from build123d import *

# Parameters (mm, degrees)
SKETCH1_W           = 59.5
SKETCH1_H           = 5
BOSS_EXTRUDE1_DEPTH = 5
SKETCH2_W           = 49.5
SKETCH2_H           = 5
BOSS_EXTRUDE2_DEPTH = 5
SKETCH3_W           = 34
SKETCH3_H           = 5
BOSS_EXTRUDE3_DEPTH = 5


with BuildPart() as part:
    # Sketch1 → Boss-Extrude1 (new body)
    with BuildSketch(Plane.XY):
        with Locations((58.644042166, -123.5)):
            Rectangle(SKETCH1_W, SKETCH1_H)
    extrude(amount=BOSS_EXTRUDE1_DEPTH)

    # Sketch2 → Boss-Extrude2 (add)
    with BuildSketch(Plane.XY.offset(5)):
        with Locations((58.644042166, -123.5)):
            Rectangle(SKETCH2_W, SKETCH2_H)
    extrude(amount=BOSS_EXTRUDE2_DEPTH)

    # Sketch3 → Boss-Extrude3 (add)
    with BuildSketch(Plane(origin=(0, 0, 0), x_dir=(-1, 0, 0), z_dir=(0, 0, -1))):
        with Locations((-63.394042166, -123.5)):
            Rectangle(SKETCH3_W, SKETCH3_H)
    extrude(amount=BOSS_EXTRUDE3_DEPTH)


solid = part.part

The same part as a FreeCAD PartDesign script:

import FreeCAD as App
import Part
import Sketcher
from FreeCAD import Vector


def add_polygon(sketch, points):
    """Adds a closed chain of lines whose ends are joined by coincident constraints."""
    first, n = sketch.GeometryCount, len(points)
    for a, b in zip(points, points[1:] + points[:1]):
        sketch.addGeometry(Part.LineSegment(App.Vector(*a, 0), App.Vector(*b, 0)), False)
    for i in range(n):
        sketch.addConstraint(Sketcher.Constraint("Coincident", first + i, 2, first + (i + 1) % n, 1))

doc = App.newDocument("Part")
body = doc.addObject("PartDesign::Body", "Body")

# Sketch on XY plane
sketch1 = doc.addObject("Sketcher::SketchObject", "Sketch")
body.addObject(sketch1)
sketch1.AttachmentSupport = (doc.XY_Plane, [""])
sketch1.MapMode = "FlatFace"
add_polygon(sketch1, [(29, -121), (29, -126), (88, -126), (88, -121)])  # lines 0-3
sketch1.addConstraint([
    Sketcher.Constraint("Vertical", 0),
    Sketcher.Constraint("Horizontal", 1),
    Sketcher.Constraint("Vertical", 2),
    Sketcher.Constraint("Horizontal", 3),
    Sketcher.Constraint("DistanceY", 0, 2, 0, 1, 5.0),
    Sketcher.Constraint("DistanceX", 1, 1, 1, 2, 59.5),
    Sketcher.Constraint("DistanceY", 0, 2, -1, 1, 126.0),
    Sketcher.Constraint("DistanceX", -1, 1, 0, 2, 28.894042),
])
pad1 = doc.addObject("PartDesign::Pad", "Pad")
body.addObject(pad1)
pad1.Profile = sketch1
pad1.Length = 5

# Sketch on XY plane
sketch2 = doc.addObject("Sketcher::SketchObject", "Sketch001")
body.addObject(sketch2)
sketch2.AttachmentSupport = (doc.XY_Plane, [""])
sketch2.MapMode = "FlatFace"
sketch2.AttachmentOffset = App.Placement(Vector(0, 0, 5), App.Rotation())
add_polygon(sketch2, [(34, -121), (34, -126), (83, -126), (83, -121)])  # lines 0-3
sketch2.addConstraint([
    Sketcher.Constraint("Vertical", 0),
    Sketcher.Constraint("Horizontal", 1),
    Sketcher.Constraint("Vertical", 2),
    Sketcher.Constraint("Horizontal", 3),
    Sketcher.Constraint("DistanceY", 0, 2, 0, 1, 5.0),
    Sketcher.Constraint("DistanceX", 1, 1, 1, 2, 49.5),
    Sketcher.Constraint("DistanceY", 0, 2, -1, 1, 126.0),
    Sketcher.Constraint("DistanceX", -1, 1, 0, 2, 33.894042),
])
pad2 = doc.addObject("PartDesign::Pad", "Pad001")
body.addObject(pad2)
pad2.Profile = sketch2
pad2.Length = 5

# Sketch on XY plane
sketch3 = doc.addObject("Sketcher::SketchObject", "Sketch002")
body.addObject(sketch3)
sketch3.AttachmentSupport = (doc.XY_Plane, [""])
sketch3.MapMode = "FlatFace"
add_polygon(sketch3, [(80, -121), (80, -126), (46, -126), (46, -121)])  # lines 0-3
sketch3.addConstraint([
    Sketcher.Constraint("Vertical", 0),
    Sketcher.Constraint("Horizontal", 1),
    Sketcher.Constraint("Vertical", 2),
    Sketcher.Constraint("Horizontal", 3),
    Sketcher.Constraint("DistanceX", 1, 2, 1, 1, 34.0),
    Sketcher.Constraint("DistanceY", 0, 2, 0, 1, 5.0),
    Sketcher.Constraint("DistanceY", 0, 2, -1, 1, 126.0),
    Sketcher.Constraint("DistanceX", -1, 1, 0, 2, 80.394042),
])
pad3 = doc.addObject("PartDesign::Pad", "Pad002")
body.addObject(pad3)
pad3.Profile = sketch3
pad3.Length = 5
pad3.Reversed = True

doc.recompute()
